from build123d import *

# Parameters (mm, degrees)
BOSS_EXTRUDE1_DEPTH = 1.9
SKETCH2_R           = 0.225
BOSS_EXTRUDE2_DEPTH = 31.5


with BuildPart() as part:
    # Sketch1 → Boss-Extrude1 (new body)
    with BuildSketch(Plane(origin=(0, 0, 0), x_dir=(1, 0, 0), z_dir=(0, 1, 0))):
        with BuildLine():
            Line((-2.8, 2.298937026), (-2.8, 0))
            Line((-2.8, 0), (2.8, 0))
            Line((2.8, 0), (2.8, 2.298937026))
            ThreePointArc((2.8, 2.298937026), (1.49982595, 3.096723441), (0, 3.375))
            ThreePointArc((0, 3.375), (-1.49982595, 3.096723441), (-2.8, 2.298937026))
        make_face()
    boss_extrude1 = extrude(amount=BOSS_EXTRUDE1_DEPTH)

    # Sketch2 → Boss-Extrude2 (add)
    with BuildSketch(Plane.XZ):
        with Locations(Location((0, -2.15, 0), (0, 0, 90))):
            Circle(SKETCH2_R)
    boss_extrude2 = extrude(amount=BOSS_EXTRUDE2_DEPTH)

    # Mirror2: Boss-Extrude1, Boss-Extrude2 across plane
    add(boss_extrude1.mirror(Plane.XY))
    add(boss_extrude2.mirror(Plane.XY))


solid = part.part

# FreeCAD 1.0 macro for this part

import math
import FreeCAD as App
import Part
import Sketcher

doc = App.newDocument("Part")
body = doc.addObject("PartDesign::Body", "Body")

sketch1 = body.newObject("Sketcher::SketchObject", "Sketch")
sketch1.AttachmentSupport = (doc.getObject("XZ_Plane"), [""])
sketch1.MapMode = "FlatFace"
sketch1.addGeometry([
    Part.LineSegment(App.Vector(-2.8, -2.3, 0), App.Vector(-2.8, 0, 0)),
    Part.LineSegment(App.Vector(-2.8, 0, 0), App.Vector(2.8, 0, 0)),
    Part.LineSegment(App.Vector(2.8, 0, 0), App.Vector(2.8, -2.3, 0)),
    Part.ArcOfCircle(Part.Circle(App.Vector(0, 0.8, 0), App.Vector(0, 0, 1), 4.2), math.radians(-90), math.radians(-48)),
    Part.ArcOfCircle(Part.Circle(App.Vector(0, 0.8, 0), App.Vector(0, 0, 1), 4.2), math.radians(-132), math.radians(-90)),
], False)
sketch1.addConstraint([
    Sketcher.Constraint("Coincident", 0, 2, 1, 1),
    Sketcher.Constraint("Coincident", 1, 2, 2, 1),
    Sketcher.Constraint("Coincident", 2, 2, 3, 2),
    Sketcher.Constraint("Tangent", 3, 1, 4, 2),
    Sketcher.Constraint("Coincident", 4, 1, 0, 1),
    Sketcher.Constraint("Vertical", 0),
    Sketcher.Constraint("Horizontal", 1),
    Sketcher.Constraint("Vertical", 2),
    Sketcher.Constraint("Equal", 3, 4),
    Sketcher.Constraint("Symmetric", 0, 2, 1, 2, -1, 1),
    Sketcher.Constraint("PointOnObject", 3, 3, -2),
    Sketcher.Constraint("PointOnObject", 3, 1, -2),
    Sketcher.Constraint("DistanceX", 1, 1, 1, 2, 5.6),
    Sketcher.Constraint("Radius", 3, 4.180941),
    Sketcher.Constraint("DistanceY", 3, 1, -1, 1, 3.375),
])
pad1 = body.newObject("PartDesign::Pad", "Pad")
pad1.Profile = sketch1
pad1.Length = 1.9
pad1.Reversed = True

sketch2 = body.newObject("Sketcher::SketchObject", "Sketch001")
sketch2.AttachmentSupport = (doc.getObject("XZ_Plane"), [""])
sketch2.MapMode = "FlatFace"
sketch2.addGeometry(Part.Circle(App.Vector(0, -2.15, 0), App.Vector(0, 0, 1), 0.23), False)
sketch2.addConstraint([
    Sketcher.Constraint("PointOnObject", 0, 3, -2),
    Sketcher.Constraint("Diameter", 0, 0.45),
    Sketcher.Constraint("DistanceY", 0, 3, -1, 1, 2.15),
])
pad2 = body.newObject("PartDesign::Pad", "Pad001")
pad2.Profile = sketch2
pad2.Length = 31.5
doc.recompute()

mirrored = body.newObject("PartDesign::Mirrored", "Mirrored")
mirrored.Originals = [pad1, pad2]
mirrored.MirrorPlane = (doc.getObject("XY_Plane"), [""])
body.Tip = mirrored

doc.recompute()
